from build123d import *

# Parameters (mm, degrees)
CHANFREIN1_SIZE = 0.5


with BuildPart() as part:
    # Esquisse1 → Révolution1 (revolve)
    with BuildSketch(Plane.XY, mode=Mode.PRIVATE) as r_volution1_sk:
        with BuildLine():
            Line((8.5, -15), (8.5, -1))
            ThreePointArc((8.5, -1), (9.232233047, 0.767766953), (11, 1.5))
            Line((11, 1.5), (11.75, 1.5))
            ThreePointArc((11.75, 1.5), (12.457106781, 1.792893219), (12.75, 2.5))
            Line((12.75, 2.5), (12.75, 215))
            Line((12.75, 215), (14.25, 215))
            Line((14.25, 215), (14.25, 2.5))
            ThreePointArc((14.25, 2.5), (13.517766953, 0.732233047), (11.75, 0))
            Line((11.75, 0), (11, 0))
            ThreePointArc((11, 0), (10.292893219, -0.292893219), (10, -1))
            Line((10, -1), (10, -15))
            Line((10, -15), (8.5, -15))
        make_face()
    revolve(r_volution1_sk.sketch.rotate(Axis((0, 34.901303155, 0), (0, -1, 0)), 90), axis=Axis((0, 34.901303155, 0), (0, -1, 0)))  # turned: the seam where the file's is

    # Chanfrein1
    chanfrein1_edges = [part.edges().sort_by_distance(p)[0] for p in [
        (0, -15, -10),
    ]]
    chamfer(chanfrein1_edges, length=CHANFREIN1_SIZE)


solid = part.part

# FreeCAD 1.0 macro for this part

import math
import FreeCAD as App
import Part
import Sketcher

V = App.Vector
Q = App.Units.Quantity


def edges_at(feature, points):
    """Names of the edges that pass closest to the given points."""
    edges = feature.Shape.Edges
    near = lambda p: min(range(len(edges)), key=lambda i: edges[i].distToShape(Part.Vertex(*p))[0])
    return sorted({f"Edge{near(p) + 1}" for p in points})

doc = App.newDocument("Part")
body = doc.addObject("PartDesign::Body", "Body")

# Sketch on XY plane
sketch1 = doc.addObject("Sketcher::SketchObject", "Sketch")
body.addObject(sketch1)
sketch1.AttachmentSupport = (doc.XY_Plane, [""])
sketch1.MapMode = "FlatFace"
sketch1.addGeometry([
    Part.LineSegment(V(8.5, -1, 0), V(8.5, -15, 0)),  # 0
    Part.LineSegment(V(8.5, -15, 0), V(10, -15, 0)),  # 1
    Part.LineSegment(V(10, -15, 0), V(10, -1, 0)),  # 2
    Part.ArcOfCircle(Part.Circle(V(11, -1, 0), V(0, 0, 1), 1), math.radians(90), math.radians(180)),  # 3
    Part.LineSegment(V(11, 0, 0), V(11.75, 0, 0)),  # 4
    Part.ArcOfCircle(Part.Circle(V(11.75, 2.5, 0), V(0, 0, 1), 2.5), math.radians(-90), math.radians(0)),  # 5
    Part.LineSegment(V(14.25, 2.5, 0), V(14.25, 215, 0)),  # 6
    Part.LineSegment(V(14.25, 215, 0), V(12.75, 215, 0)),  # 7
    Part.LineSegment(V(12.75, 215, 0), V(12.75, 2.5, 0)),  # 8
    Part.ArcOfCircle(Part.Circle(V(11.75, 2.5, 0), V(0, 0, 1), 1), math.radians(-90), math.radians(0)),  # 9
    Part.LineSegment(V(11.75, 1.5, 0), V(11, 1.5, 0)),  # 10
    Part.ArcOfCircle(Part.Circle(V(11, -1, 0), V(0, 0, 1), 2.5), math.radians(90), math.radians(180)),  # 11
], False)
sketch1.addConstraint([
    Sketcher.Constraint("Coincident", 0, 2, 1, 1),
    Sketcher.Constraint("Coincident", 1, 2, 2, 1),
    Sketcher.Constraint("Tangent", 2, 2, 3, 2),
    Sketcher.Constraint("Tangent", 3, 1, 4, 1),
    Sketcher.Constraint("Tangent", 4, 2, 5, 1),
    Sketcher.Constraint("Tangent", 5, 2, 6, 1),
    Sketcher.Constraint("Coincident", 6, 2, 7, 1),
    Sketcher.Constraint("Coincident", 7, 2, 8, 1),
    Sketcher.Constraint("Tangent", 8, 2, 9, 2),
    Sketcher.Constraint("Tangent", 9, 1, 10, 1),
    Sketcher.Constraint("Tangent", 10, 2, 11, 1),
    Sketcher.Constraint("Tangent", 11, 2, 0, 1),
    Sketcher.Constraint("Vertical", 0),
    Sketcher.Constraint("Horizontal", 1),
    Sketcher.Constraint("Vertical", 2),
    Sketcher.Constraint("Horizontal", 4),
    Sketcher.Constraint("Vertical", 6),
    Sketcher.Constraint("Horizontal", 7),
    Sketcher.Constraint("Vertical", 8),
    Sketcher.Constraint("Horizontal", 10),
    Sketcher.Constraint("Coincident", 9, 3, 5, 3),
    Sketcher.Constraint("Coincident", 11, 3, 3, 3),
    Sketcher.Constraint("Equal", 3, 9),
    Sketcher.Constraint("PointOnObject", 3, 1, -1),
    Sketcher.Constraint("Radius", 3, Q("1 mm")),
    Sketcher.Constraint("Radius", 5, Q("2.5 mm")),
    Sketcher.Constraint("DistanceY", 0, 2, 0, 1, Q("14 mm")),
    Sketcher.Constraint("DistanceY", 6, 1, 6, 2, Q("212.5 mm")),
    Sketcher.Constraint("DistanceX", -1, 1, 3, 3, Q("11 mm")),
    Sketcher.Constraint("DistanceX", 4, 1, 4, 2, Q("0.75 mm")),
])
revolution = doc.addObject("PartDesign::Revolution", "Revolution")
body.addObject(revolution)
revolution.Profile = sketch1
revolution.ReferenceAxis = (sketch1, ["V_Axis"])
revolution.Angle = 360
doc.recompute()

chamfer = doc.addObject("PartDesign::Chamfer", "Chamfer")
body.addObject(chamfer)
chamfer.Base = (revolution, edges_at(revolution, [(0, -15, -10)]))
chamfer.Size = 0.5

doc.recompute()
